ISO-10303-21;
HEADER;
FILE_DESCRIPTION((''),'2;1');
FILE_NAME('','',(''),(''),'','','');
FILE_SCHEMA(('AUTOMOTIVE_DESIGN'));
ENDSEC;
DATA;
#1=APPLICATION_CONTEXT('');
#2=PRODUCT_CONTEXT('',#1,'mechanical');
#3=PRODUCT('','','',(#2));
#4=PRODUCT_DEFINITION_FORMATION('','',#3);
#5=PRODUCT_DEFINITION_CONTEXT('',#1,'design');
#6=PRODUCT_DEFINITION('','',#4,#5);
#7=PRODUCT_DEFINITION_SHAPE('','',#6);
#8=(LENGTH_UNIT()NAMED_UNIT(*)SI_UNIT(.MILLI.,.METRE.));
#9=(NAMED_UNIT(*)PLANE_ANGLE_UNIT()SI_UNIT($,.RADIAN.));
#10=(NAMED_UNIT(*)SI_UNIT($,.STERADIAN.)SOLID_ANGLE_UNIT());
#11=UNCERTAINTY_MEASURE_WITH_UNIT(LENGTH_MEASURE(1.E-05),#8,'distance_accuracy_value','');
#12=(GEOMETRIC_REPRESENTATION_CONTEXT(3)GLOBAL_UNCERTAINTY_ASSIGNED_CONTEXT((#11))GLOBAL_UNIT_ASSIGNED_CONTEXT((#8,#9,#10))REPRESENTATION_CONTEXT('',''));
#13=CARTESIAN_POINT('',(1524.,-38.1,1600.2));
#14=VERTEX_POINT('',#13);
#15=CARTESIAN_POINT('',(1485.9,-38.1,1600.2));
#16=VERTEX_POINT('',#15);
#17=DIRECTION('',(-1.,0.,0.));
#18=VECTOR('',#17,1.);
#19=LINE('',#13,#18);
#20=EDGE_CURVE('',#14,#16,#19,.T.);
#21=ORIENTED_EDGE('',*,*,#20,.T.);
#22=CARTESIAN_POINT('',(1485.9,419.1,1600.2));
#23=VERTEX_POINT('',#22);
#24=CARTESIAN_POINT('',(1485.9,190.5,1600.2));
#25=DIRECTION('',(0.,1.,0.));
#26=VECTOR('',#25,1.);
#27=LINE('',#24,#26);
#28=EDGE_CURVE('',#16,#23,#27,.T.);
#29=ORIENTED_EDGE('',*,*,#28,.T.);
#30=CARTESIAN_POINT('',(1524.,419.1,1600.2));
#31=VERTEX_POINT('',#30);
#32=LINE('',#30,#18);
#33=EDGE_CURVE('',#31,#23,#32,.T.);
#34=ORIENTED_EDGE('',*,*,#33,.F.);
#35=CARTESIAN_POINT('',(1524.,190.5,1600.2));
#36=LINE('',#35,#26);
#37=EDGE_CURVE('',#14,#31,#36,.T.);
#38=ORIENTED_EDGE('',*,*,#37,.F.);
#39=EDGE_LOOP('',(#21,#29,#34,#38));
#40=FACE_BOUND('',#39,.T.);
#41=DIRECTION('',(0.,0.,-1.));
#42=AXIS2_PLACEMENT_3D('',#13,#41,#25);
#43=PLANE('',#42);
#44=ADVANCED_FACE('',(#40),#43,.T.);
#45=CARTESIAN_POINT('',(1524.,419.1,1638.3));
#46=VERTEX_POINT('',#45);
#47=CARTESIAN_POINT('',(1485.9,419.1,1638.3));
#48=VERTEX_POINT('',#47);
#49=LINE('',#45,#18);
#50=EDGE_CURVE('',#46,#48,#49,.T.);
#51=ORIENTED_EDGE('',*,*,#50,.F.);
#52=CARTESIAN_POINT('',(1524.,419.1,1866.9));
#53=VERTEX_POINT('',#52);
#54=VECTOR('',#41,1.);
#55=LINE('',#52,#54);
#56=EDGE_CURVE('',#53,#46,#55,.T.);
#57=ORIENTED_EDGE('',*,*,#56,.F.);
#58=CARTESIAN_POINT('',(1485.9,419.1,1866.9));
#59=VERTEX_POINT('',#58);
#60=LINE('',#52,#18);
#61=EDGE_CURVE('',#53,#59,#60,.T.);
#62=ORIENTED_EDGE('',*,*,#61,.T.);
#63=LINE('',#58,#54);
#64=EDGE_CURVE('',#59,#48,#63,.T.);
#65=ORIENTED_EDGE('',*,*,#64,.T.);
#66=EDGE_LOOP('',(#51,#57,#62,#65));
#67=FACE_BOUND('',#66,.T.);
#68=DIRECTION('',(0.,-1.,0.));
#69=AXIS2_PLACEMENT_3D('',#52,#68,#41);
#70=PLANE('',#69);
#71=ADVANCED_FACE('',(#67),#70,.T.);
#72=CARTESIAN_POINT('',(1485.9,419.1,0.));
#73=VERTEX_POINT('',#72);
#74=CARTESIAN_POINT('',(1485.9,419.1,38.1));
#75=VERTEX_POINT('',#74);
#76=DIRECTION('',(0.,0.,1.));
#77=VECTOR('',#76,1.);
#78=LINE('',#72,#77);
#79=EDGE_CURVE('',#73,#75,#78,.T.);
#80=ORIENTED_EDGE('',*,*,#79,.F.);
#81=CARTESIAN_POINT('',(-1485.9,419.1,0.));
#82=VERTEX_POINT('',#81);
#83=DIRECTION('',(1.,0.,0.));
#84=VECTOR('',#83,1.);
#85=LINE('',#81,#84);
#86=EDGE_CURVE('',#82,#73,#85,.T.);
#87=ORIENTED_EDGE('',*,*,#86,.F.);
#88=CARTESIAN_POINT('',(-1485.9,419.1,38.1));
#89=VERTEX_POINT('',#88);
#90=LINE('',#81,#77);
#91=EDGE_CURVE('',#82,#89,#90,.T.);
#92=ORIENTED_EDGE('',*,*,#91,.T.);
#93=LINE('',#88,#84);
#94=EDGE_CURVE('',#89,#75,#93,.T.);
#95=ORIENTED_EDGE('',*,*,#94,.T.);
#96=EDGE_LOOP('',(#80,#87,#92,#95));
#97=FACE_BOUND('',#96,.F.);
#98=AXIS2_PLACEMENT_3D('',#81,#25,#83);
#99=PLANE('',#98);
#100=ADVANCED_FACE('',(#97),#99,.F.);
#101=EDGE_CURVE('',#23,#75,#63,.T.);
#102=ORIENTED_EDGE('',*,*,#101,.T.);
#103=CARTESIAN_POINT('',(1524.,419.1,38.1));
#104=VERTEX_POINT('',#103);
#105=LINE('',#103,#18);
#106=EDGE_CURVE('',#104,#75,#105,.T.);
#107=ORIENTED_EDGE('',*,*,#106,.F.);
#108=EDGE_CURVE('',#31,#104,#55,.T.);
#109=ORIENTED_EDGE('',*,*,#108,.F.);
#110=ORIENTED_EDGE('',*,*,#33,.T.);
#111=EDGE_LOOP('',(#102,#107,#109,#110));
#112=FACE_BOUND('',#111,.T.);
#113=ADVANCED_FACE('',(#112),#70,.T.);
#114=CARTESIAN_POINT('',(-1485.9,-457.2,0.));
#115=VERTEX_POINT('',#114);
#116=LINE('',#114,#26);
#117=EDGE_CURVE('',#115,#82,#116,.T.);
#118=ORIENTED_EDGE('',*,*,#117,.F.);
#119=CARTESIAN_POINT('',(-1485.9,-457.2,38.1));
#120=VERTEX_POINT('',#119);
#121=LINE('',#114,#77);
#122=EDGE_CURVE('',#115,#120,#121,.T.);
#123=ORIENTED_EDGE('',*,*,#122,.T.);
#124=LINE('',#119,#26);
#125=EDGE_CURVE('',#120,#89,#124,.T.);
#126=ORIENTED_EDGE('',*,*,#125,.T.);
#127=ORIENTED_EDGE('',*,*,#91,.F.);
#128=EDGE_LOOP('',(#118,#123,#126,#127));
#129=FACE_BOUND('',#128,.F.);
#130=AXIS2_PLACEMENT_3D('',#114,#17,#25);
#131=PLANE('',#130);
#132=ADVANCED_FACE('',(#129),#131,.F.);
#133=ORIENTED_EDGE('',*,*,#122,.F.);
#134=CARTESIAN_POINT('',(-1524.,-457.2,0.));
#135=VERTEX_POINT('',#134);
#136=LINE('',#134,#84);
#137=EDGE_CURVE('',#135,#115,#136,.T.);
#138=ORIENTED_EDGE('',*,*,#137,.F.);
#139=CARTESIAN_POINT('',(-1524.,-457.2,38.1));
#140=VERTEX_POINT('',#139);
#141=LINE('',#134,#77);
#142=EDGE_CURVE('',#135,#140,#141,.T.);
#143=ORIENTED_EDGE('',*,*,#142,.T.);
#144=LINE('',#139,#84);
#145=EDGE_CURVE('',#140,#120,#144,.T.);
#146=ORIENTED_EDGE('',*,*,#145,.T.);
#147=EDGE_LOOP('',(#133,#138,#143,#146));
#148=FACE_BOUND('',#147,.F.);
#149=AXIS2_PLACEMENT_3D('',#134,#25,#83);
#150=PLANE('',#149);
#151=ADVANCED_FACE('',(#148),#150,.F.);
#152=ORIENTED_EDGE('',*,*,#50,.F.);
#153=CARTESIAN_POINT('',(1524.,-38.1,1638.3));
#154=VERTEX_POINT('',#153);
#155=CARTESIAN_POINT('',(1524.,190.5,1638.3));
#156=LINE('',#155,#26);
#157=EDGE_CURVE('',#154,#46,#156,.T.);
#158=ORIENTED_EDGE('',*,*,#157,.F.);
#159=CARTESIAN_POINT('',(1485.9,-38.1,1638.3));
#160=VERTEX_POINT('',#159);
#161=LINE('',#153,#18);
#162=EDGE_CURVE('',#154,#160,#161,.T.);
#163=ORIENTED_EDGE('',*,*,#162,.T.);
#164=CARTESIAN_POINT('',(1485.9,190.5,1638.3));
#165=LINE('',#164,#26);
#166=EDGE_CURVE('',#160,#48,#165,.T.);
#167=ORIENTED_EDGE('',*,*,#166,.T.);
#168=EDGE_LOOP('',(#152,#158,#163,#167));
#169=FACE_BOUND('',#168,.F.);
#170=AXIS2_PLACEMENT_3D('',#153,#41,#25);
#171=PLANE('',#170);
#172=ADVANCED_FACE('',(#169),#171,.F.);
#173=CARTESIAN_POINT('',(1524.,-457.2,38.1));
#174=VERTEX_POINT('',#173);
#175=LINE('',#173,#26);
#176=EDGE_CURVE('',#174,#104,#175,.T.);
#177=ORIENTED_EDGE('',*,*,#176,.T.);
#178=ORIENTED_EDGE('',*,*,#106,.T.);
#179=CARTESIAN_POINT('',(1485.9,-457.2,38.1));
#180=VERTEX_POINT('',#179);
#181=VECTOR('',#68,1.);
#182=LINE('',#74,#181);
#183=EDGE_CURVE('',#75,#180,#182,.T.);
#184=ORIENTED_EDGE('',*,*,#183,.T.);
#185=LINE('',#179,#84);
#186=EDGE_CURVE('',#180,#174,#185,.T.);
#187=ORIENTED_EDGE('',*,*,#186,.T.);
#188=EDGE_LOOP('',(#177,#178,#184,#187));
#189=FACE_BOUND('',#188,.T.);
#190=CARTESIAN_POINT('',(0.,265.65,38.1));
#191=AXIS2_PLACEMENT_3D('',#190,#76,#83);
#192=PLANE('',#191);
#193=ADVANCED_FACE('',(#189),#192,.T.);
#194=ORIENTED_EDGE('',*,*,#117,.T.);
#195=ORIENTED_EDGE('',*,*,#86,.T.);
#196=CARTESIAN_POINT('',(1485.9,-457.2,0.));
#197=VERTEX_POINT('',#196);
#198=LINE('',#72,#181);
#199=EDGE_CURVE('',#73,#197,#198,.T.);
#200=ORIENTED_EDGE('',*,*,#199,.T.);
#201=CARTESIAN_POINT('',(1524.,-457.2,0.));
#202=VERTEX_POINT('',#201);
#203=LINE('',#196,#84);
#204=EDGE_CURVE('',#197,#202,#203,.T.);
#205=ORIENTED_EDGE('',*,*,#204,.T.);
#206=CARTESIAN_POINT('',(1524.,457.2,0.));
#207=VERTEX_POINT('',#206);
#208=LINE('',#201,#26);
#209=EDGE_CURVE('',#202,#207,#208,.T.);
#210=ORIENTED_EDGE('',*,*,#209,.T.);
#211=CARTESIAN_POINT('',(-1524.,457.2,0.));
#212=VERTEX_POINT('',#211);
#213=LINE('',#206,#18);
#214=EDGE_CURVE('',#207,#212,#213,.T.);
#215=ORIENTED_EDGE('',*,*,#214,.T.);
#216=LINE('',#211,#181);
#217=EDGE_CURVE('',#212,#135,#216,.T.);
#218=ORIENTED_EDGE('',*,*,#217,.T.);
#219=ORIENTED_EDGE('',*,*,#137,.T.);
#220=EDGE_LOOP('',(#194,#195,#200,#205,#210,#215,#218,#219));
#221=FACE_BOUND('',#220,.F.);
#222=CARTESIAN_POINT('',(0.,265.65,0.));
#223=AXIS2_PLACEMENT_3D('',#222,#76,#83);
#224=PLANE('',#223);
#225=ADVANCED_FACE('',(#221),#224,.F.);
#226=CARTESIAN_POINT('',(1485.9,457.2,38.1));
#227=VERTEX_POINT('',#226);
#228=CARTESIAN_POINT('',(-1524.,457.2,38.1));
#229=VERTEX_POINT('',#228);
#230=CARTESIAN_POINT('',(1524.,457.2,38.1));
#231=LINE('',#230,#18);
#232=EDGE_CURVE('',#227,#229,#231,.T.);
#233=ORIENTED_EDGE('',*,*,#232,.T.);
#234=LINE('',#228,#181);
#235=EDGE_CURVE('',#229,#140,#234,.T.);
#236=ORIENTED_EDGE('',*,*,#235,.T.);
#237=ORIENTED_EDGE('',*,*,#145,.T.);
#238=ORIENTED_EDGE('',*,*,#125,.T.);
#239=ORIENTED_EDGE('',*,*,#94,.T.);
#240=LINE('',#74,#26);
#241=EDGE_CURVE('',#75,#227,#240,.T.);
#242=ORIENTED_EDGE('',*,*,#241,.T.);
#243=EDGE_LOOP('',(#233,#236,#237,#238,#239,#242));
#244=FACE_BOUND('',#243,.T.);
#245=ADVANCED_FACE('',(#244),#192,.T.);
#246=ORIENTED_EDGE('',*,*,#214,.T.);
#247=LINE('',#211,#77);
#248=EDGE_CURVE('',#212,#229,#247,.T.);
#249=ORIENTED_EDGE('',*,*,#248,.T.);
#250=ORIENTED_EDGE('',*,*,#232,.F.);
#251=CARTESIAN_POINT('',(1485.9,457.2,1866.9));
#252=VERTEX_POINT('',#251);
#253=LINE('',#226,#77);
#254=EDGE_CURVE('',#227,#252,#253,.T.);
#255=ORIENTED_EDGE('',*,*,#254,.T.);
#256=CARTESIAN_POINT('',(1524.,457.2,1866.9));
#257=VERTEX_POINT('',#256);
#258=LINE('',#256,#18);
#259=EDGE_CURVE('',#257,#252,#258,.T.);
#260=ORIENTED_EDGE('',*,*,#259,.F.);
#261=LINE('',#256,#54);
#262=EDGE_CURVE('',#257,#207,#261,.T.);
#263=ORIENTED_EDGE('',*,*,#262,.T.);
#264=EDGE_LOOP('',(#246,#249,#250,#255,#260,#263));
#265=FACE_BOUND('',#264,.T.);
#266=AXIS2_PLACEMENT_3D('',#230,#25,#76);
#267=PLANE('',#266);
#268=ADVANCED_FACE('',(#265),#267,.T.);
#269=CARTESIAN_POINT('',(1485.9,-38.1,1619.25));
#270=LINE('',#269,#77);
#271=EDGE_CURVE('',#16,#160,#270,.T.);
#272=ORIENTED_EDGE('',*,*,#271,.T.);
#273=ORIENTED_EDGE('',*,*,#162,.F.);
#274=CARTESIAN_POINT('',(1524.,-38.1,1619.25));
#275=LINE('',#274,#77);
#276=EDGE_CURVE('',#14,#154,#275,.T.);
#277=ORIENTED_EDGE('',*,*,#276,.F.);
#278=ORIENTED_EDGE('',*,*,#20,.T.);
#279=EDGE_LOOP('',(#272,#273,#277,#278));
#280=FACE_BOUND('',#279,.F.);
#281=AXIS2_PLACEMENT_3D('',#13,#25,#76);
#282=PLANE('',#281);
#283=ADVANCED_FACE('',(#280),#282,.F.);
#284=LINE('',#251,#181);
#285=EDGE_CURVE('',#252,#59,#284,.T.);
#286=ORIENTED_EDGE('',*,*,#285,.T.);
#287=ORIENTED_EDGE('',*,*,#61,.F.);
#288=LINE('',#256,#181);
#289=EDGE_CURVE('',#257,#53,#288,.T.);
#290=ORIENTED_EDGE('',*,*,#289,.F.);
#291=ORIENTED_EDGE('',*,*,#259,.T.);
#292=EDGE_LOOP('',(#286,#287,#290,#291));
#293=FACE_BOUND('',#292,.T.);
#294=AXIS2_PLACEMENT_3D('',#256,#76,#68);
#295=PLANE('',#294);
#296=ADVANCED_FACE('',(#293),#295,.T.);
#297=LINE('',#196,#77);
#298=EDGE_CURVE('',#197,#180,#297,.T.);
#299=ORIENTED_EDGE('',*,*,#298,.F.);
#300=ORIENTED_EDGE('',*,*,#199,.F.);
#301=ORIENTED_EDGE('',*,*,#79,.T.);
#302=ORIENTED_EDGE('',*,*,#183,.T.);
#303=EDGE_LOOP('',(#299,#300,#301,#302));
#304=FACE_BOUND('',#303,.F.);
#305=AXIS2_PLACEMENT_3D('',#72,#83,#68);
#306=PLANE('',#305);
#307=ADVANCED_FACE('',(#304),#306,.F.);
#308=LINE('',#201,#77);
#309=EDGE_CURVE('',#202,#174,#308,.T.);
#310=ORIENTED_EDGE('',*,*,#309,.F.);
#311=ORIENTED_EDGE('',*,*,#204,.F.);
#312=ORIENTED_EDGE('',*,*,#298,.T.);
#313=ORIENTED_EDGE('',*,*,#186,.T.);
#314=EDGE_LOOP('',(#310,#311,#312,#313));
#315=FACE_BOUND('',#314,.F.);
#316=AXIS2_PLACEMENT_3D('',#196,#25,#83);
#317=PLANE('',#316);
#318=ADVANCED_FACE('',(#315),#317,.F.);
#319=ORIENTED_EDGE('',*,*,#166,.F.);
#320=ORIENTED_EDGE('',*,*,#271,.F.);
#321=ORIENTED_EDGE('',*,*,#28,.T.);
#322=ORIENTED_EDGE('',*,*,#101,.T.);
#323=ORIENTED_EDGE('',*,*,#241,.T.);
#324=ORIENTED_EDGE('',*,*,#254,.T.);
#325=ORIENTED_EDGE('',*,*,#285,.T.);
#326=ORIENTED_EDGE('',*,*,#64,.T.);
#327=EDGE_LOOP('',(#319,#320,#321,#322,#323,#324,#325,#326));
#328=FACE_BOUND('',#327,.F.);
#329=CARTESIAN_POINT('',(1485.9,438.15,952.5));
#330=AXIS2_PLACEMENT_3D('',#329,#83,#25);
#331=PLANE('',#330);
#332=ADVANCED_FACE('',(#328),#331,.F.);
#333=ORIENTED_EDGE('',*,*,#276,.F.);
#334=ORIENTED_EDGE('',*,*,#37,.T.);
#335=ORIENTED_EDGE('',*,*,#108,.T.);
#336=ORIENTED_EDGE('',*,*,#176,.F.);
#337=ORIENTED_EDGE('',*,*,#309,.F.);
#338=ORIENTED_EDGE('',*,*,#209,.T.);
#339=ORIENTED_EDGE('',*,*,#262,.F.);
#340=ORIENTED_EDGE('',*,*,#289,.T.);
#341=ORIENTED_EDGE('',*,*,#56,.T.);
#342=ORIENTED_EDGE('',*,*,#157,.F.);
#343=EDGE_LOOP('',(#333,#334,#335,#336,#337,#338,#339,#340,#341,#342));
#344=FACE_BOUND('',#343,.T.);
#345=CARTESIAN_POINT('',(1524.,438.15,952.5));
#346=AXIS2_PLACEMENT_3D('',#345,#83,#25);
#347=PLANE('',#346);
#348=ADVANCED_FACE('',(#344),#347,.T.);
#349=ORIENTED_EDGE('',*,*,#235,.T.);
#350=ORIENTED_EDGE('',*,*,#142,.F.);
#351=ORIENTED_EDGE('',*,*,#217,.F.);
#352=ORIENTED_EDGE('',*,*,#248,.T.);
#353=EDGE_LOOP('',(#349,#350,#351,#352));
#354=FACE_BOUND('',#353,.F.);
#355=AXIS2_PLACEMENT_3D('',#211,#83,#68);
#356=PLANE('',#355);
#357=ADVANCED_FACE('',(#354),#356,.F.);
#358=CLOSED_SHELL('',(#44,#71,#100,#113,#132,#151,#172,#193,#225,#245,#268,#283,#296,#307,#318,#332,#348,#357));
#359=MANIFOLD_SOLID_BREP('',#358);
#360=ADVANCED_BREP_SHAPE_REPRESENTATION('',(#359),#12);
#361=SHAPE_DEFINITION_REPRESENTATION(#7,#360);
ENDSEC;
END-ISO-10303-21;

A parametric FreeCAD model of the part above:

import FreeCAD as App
import Part
import Sketcher
Q = App.Units.Quantity


def add_polygon(sketch, points):
    """Adds a closed chain of lines whose ends are joined by coincident constraints."""
    first, n = sketch.GeometryCount, len(points)
    for a, b in zip(points, points[1:] + points[:1]):
        sketch.addGeometry(Part.LineSegment(App.Vector(*a, 0), App.Vector(*b, 0)), False)
    for i in range(n):
        sketch.addConstraint(Sketcher.Constraint("Coincident", first + i, 2, first + (i + 1) % n, 1))

doc = App.newDocument("Part")
params = doc.addObject("Spreadsheet::Sheet", "Params")
for row, (alias, value) in enumerate([
    ("sketch1_width", "120 in"),
    ("sketch1_width2", "117 in"),
    ("sketch1_height", "36 in"),
    ("sketch1_height2", "34.5 in"),
    ("pad1_length", "1.5 in"),
    ("sketch2_height", "72 in"),
    ("sketch2_width", "1.5 in"),
    ("pad2_length", "1.5 in"),
    ("sketch3_width", "18 in"),
    ("sketch3_height", "1.5 in"),
    ("pad3_length", "1.5 in"),
], start=1):
    params.set(f"A{row}", alias)
    params.set(f"B{row}", "=" + value)
    params.setAlias(f"B{row}", alias)

body = doc.addObject("PartDesign::Body", "Body")

# Sketch on XY plane
sketch1 = doc.addObject("Sketcher::SketchObject", "Sketch")
body.addObject(sketch1)
sketch1.AttachmentSupport = (doc.XY_Plane, [""])
sketch1.MapMode = "FlatFace"
add_polygon(sketch1, [(1524, -457.2), (1524, 457.2), (-1524, 457.2), (-1524, -457.2), (-1485.9, -457.2), (-1485.9, 419.1), (1485.9, 419.1), (1485.9, -457.2)])  # lines 0-7
sketch1.addConstraint(Sketcher.Constraint("Vertical", 0))
sketch1.addConstraint(Sketcher.Constraint("Horizontal", 1))
sketch1.addConstraint(Sketcher.Constraint("Vertical", 2))
sketch1.addConstraint(Sketcher.Constraint("Horizontal", 3))
sketch1.addConstraint(Sketcher.Constraint("Vertical", 4))
sketch1.addConstraint(Sketcher.Constraint("Horizontal", 5))
sketch1.addConstraint(Sketcher.Constraint("Vertical", 6))
sketch1.addConstraint(Sketcher.Constraint("Horizontal", 7))
sketch1.addConstraint(Sketcher.Constraint("Symmetric", 0, 2, 2, 2, -1, 1))
sketch1.addConstraint(Sketcher.Constraint("Symmetric", 3, 2, 6, 2, -2))
sketch1.addConstraint(Sketcher.Constraint("DistanceX", 1, 2, 1, 1, Q("120 in")))
sketch1.addConstraint(Sketcher.Constraint("DistanceX", 5, 1, 5, 2, Q("117 in")))
sketch1.addConstraint(Sketcher.Constraint("DistanceY", 0, 1, 0, 2, Q("36 in")))
sketch1.addConstraint(Sketcher.Constraint("DistanceY", 4, 1, 4, 2, Q("34.5 in")))
sketch1.setExpression("Constraints[18]", "Params.sketch1_width")
sketch1.setExpression("Constraints[19]", "Params.sketch1_width2")
sketch1.setExpression("Constraints[20]", "Params.sketch1_height")
sketch1.setExpression("Constraints[21]", "Params.sketch1_height2")
pad1 = doc.addObject("PartDesign::Pad", "Pad")
body.addObject(pad1)
pad1.Profile = sketch1
pad1.setExpression("Length", "Params.pad1_length")

# Sketch on YZ plane
sketch2 = doc.addObject("Sketcher::SketchObject", "Sketch001")
body.addObject(sketch2)
sketch2.AttachmentSupport = (doc.YZ_Plane, [""])
sketch2.MapMode = "FlatFace"
sketch2.AttachmentOffset = App.Placement(App.Vector(0, 0, 60 * 25.4), App.Rotation())
add_polygon(sketch2, [(419.1, 38.1), (457.2, 38.1), (457.2, 1866.9), (419.1, 1866.9)])  # lines 0-3
sketch2.addConstraint(Sketcher.Constraint("Horizontal", 0))
sketch2.addConstraint(Sketcher.Constraint("Vertical", 1))
sketch2.addConstraint(Sketcher.Constraint("Horizontal", 2))
sketch2.addConstraint(Sketcher.Constraint("Vertical", 3))
sketch2.addConstraint(Sketcher.Constraint("DistanceY", 1, 1, 1, 2, Q("72 in")))
sketch2.addConstraint(Sketcher.Constraint("DistanceX", 0, 1, 0, 2, Q("1.5 in")))
sketch2.addConstraint(Sketcher.Constraint("DistanceX", -1, 1, 0, 2, Q("18 in")))
sketch2.addConstraint(Sketcher.Constraint("DistanceY", -1, 1, 0, 2, Q("1.5 in")))
sketch2.setExpression("Constraints[8]", "Params.sketch2_height")
sketch2.setExpression("Constraints[9]", "Params.sketch2_width")
pad2 = doc.addObject("PartDesign::Pad", "Pad001")
body.addObject(pad2)
pad2.Profile = sketch2
pad2.setExpression("Length", "Params.pad2_length")
pad2.Reversed = True

# Sketch on YZ plane
sketch3 = doc.addObject("Sketcher::SketchObject", "Sketch002")
body.addObject(sketch3)
sketch3.AttachmentSupport = (doc.YZ_Plane, [""])
sketch3.MapMode = "FlatFace"
sketch3.AttachmentOffset = App.Placement(App.Vector(0, 0, 60 * 25.4), App.Rotation())
add_polygon(sketch3, [(-38.1, 1638.3), (-38.1, 1600.2), (419.1, 1600.2), (419.1, 1638.3)])  # lines 0-3
sketch3.addConstraint(Sketcher.Constraint("Vertical", 0))
sketch3.addConstraint(Sketcher.Constraint("Horizontal", 1))
sketch3.addConstraint(Sketcher.Constraint("Vertical", 2))
sketch3.addConstraint(Sketcher.Constraint("Horizontal", 3))
sketch3.addConstraint(Sketcher.Constraint("DistanceX", 1, 1, 1, 2, Q("18 in")))
sketch3.addConstraint(Sketcher.Constraint("DistanceY", 0, 2, 0, 1, Q("1.5 in")))
sketch3.addConstraint(Sketcher.Constraint("DistanceY", -1, 1, 0, 2, Q("63 in")))
sketch3.addConstraint(Sketcher.Constraint("DistanceX", 0, 2, -1, 1, Q("1.5 in")))
sketch3.setExpression("Constraints[8]", "Params.sketch3_width")
sketch3.setExpression("Constraints[9]", "Params.sketch3_height")
pad3 = doc.addObject("PartDesign::Pad", "Pad002")
body.addObject(pad3)
pad3.Profile = sketch3
pad3.setExpression("Length", "Params.pad3_length")
pad3.Reversed = True

doc.recompute()
